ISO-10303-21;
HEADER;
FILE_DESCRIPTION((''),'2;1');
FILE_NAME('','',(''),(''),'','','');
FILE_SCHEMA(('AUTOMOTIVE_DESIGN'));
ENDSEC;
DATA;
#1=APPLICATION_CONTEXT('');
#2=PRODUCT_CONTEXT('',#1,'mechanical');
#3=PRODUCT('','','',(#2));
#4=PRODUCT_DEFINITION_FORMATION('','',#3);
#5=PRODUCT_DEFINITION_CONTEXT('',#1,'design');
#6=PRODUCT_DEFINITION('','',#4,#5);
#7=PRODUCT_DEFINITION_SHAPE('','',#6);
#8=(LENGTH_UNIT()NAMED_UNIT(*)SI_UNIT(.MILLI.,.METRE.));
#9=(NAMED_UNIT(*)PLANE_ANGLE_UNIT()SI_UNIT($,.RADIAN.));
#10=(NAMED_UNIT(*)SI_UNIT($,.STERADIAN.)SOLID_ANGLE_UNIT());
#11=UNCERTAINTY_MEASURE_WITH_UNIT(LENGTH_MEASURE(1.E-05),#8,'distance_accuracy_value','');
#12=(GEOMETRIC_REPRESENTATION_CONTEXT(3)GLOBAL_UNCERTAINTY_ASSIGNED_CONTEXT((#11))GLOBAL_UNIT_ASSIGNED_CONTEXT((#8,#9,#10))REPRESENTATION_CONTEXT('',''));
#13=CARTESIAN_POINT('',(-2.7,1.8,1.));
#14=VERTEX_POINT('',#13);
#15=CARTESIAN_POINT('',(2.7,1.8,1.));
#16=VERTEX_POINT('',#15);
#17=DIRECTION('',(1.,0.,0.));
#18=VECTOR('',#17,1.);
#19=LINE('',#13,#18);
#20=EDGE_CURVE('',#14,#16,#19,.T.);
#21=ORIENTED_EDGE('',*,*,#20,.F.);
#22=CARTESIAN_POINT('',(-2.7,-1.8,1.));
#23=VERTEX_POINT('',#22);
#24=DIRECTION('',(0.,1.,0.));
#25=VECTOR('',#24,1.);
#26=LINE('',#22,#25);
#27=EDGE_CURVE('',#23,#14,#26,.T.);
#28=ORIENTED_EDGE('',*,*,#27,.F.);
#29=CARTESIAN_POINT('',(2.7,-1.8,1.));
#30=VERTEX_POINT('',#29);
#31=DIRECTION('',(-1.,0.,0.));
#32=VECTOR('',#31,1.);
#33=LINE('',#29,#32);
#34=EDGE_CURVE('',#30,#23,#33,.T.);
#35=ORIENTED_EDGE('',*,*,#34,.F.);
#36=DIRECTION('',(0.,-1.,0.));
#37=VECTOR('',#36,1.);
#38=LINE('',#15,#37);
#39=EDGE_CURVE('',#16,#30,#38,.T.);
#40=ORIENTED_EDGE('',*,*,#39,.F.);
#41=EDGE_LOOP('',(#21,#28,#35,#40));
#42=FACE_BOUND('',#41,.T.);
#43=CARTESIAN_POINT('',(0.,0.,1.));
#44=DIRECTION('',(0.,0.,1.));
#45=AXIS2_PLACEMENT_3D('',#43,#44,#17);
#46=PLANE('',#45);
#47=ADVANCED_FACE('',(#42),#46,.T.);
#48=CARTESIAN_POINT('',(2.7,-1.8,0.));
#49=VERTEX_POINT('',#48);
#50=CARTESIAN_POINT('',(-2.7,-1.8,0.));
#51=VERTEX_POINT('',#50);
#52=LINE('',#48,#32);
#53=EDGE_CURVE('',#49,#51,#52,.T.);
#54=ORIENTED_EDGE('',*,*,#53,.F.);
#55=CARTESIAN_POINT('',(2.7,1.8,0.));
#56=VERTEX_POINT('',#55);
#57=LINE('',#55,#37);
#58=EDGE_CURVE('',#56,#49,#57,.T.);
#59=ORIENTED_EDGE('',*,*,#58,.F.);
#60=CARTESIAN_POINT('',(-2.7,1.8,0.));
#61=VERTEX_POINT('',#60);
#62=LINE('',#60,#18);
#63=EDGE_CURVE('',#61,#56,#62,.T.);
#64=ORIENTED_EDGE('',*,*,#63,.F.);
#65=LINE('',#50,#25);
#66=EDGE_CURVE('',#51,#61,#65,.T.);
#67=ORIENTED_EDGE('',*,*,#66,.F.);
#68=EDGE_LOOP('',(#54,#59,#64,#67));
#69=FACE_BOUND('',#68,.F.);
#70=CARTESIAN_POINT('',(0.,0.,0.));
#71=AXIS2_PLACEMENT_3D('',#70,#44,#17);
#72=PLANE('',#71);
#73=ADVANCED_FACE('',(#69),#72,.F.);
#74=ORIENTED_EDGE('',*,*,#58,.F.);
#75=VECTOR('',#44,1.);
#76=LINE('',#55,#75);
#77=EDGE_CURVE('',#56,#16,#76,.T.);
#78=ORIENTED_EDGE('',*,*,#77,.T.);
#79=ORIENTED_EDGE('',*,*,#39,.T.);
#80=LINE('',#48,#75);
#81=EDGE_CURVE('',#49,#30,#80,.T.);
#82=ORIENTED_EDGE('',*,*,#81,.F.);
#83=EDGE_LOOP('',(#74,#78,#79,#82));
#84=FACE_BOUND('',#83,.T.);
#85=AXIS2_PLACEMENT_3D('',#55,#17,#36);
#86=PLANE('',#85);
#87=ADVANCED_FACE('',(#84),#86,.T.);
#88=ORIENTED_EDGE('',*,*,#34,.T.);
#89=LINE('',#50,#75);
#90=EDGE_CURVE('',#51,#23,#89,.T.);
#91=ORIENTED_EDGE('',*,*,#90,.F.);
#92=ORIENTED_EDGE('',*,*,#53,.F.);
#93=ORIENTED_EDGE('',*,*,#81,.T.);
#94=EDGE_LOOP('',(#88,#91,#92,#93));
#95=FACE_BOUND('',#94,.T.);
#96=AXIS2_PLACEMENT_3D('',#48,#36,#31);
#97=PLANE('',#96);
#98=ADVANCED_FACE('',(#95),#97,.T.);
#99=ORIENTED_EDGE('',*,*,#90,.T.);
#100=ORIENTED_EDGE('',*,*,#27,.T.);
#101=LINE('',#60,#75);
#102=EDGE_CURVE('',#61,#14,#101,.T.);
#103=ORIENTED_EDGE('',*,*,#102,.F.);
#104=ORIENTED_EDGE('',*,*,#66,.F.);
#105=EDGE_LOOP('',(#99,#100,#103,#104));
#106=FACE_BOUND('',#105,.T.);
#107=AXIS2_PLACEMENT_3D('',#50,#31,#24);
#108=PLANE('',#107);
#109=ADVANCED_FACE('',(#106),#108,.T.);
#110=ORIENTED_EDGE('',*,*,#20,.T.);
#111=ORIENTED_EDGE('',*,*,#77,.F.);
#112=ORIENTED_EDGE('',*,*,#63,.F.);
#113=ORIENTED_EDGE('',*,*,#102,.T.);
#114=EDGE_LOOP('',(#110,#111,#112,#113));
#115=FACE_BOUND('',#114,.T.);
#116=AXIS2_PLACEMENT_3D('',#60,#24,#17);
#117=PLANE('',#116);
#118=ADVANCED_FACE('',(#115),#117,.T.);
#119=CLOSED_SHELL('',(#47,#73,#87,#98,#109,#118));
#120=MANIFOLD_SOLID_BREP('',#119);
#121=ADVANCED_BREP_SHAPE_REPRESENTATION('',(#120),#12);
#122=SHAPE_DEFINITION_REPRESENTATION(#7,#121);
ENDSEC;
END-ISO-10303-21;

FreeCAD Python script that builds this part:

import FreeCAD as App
import Part
import Sketcher

V = App.Vector


def add_polygon(sketch, points):
    """Adds a closed chain of lines whose ends are joined by coincident constraints."""
    first, n = sketch.GeometryCount, len(points)
    for a, b in zip(points, points[1:] + points[:1]):
        sketch.addGeometry(Part.LineSegment(App.Vector(*a, 0), App.Vector(*b, 0)), False)
    for i in range(n):
        sketch.addConstraint(Sketcher.Constraint("Coincident", first + i, 2, first + (i + 1) % n, 1))

doc = App.newDocument("Part")
params = doc.addObject("Spreadsheet::Sheet", "Params")
for row, (alias, value) in enumerate([
    ("sketch1_width", "5.4 mm"),
    ("sketch1_height", "3.6 mm"),
    ("pad1_length", "1 mm"),
], start=1):
    params.set(f"A{row}", alias)
    params.set(f"B{row}", "=" + value)
    params.setAlias(f"B{row}", alias)

body = doc.addObject("PartDesign::Body", "Body")

sketch1 = doc.addObject("Sketcher::SketchObject", "Sketch")
body.addObject(sketch1)
sketch1.AttachmentSupport = (doc.XY_Plane, [""])
sketch1.MapMode = "FlatFace"
add_polygon(sketch1, [(2.7, 1.8), (-2.7, 1.8), (-2.7, -1.8), (2.7, -1.8)])
sketch1.addConstraint([
    Sketcher.Constraint("Horizontal", 0),
    Sketcher.Constraint("Vertical", 1),
    Sketcher.Constraint("Horizontal", 2),
    Sketcher.Constraint("Vertical", 3),
    Sketcher.Constraint("Symmetric", 0, 2, 2, 2, -1, 1),
    Sketcher.Constraint("DistanceX", 0, 2, 0, 1, 5.4),
    Sketcher.Constraint("DistanceY", 1, 2, 1, 1, 3.6),
])
sketch1.setExpression("Constraints[9]", "Params.sketch1_width")
sketch1.setExpression("Constraints[10]", "Params.sketch1_height")
pad1 = doc.addObject("PartDesign::Pad", "Pad")
body.addObject(pad1)
pad1.Profile = sketch1
pad1.setExpression("Length", "Params.pad1_length")

doc.recompute()
